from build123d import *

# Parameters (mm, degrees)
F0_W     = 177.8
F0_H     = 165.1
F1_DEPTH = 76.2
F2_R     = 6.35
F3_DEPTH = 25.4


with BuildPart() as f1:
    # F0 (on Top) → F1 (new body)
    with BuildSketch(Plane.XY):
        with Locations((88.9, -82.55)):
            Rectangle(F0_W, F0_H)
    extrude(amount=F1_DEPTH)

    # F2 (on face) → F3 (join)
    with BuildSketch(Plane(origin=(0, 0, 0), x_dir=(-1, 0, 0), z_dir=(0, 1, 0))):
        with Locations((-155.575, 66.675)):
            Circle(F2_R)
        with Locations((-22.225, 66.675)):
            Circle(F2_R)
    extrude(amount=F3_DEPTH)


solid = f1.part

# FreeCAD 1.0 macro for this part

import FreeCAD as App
import Part
import Sketcher

V = App.Vector
Q = App.Units.Quantity


def add_polygon(sketch, points):
    """Adds a closed chain of lines whose ends are joined by coincident constraints."""
    first, n = sketch.GeometryCount, len(points)
    for a, b in zip(points, points[1:] + points[:1]):
        sketch.addGeometry(Part.LineSegment(App.Vector(*a, 0), App.Vector(*b, 0)), False)
    for i in range(n):
        sketch.addConstraint(Sketcher.Constraint("Coincident", first + i, 2, first + (i + 1) % n, 1))

doc = App.newDocument("Part")
params = doc.addObject("Spreadsheet::Sheet", "Params")
for row, (alias, value) in enumerate([
    ("sketch1_width", "7 in"),
    ("sketch1_height", "6.5 in"),
    ("pad1_length", "3 in"),
    ("sketch2_diameter", "0.5 in"),
    ("pad2_length", "1 in"),
], start=1):
    params.set(f"A{row}", alias)
    params.set(f"B{row}", "=" + value)
    params.setAlias(f"B{row}", alias)

body = doc.addObject("PartDesign::Body", "Body")

# Sketch on XY plane
sketch1 = body.newObject("Sketcher::SketchObject", "Sketch")
sketch1.AttachmentSupport = (doc.getObject("XY_Plane"), [""])
sketch1.MapMode = "FlatFace"
add_polygon(sketch1, [(0, 0), (0, -165.1), (177.8, -165.1), (177.8, 0)])  # lines 0-3
sketch1.addConstraint(Sketcher.Constraint("Vertical", 0))
sketch1.addConstraint(Sketcher.Constraint("Horizontal", 1))
sketch1.addConstraint(Sketcher.Constraint("Vertical", 2))
sketch1.addConstraint(Sketcher.Constraint("Horizontal", 3))
sketch1.addConstraint(Sketcher.Constraint("Coincident", 3, 2, -1, 1))
sketch1.addConstraint(Sketcher.Constraint("DistanceX", 1, 1, 1, 2, Q("7 in")))
sketch1.addConstraint(Sketcher.Constraint("DistanceY", 0, 2, 0, 1, Q("6.5 in")))
sketch1.setExpression("Constraints[9]", "Params.sketch1_width")
sketch1.setExpression("Constraints[10]", "Params.sketch1_height")
pad1 = body.newObject("PartDesign::Pad", "Pad")
pad1.Profile = sketch1
pad1.setExpression("Length", "Params.pad1_length")

# Sketch on XZ plane
sketch2 = body.newObject("Sketcher::SketchObject", "Sketch001")
sketch2.AttachmentSupport = (doc.getObject("XZ_Plane"), [""])
sketch2.MapMode = "FlatFace"
sketch2.addGeometry(Part.Circle(V(155.575, 66.675, 0), V(0, 0, 1), 6.35), False)
sketch2.addGeometry(Part.Circle(V(22.225, 66.675, 0), V(0, 0, 1), 6.35), False)
sketch2.addConstraint(Sketcher.Constraint("Equal", 0, 1))
sketch2.addConstraint(Sketcher.Constraint("Horizontal", 0, 3, 1, 3))
sketch2.addConstraint(Sketcher.Constraint("Diameter", 0, Q("0.5 in")))
sketch2.addConstraint(Sketcher.Constraint("DistanceX", 1, 3, 0, 3, Q("5.25 in")))
sketch2.addConstraint(Sketcher.Constraint("DistanceX", -1, 1, 0, 3, Q("6.125 in")))
sketch2.addConstraint(Sketcher.Constraint("DistanceY", -1, 1, 0, 3, Q("2.625 in")))
sketch2.setExpression("Constraints[2]", "Params.sketch2_diameter")
pad2 = body.newObject("PartDesign::Pad", "Pad001")
pad2.Profile = sketch2
pad2.setExpression("Length", "Params.pad2_length")
pad2.Reversed = True

doc.recompute()
